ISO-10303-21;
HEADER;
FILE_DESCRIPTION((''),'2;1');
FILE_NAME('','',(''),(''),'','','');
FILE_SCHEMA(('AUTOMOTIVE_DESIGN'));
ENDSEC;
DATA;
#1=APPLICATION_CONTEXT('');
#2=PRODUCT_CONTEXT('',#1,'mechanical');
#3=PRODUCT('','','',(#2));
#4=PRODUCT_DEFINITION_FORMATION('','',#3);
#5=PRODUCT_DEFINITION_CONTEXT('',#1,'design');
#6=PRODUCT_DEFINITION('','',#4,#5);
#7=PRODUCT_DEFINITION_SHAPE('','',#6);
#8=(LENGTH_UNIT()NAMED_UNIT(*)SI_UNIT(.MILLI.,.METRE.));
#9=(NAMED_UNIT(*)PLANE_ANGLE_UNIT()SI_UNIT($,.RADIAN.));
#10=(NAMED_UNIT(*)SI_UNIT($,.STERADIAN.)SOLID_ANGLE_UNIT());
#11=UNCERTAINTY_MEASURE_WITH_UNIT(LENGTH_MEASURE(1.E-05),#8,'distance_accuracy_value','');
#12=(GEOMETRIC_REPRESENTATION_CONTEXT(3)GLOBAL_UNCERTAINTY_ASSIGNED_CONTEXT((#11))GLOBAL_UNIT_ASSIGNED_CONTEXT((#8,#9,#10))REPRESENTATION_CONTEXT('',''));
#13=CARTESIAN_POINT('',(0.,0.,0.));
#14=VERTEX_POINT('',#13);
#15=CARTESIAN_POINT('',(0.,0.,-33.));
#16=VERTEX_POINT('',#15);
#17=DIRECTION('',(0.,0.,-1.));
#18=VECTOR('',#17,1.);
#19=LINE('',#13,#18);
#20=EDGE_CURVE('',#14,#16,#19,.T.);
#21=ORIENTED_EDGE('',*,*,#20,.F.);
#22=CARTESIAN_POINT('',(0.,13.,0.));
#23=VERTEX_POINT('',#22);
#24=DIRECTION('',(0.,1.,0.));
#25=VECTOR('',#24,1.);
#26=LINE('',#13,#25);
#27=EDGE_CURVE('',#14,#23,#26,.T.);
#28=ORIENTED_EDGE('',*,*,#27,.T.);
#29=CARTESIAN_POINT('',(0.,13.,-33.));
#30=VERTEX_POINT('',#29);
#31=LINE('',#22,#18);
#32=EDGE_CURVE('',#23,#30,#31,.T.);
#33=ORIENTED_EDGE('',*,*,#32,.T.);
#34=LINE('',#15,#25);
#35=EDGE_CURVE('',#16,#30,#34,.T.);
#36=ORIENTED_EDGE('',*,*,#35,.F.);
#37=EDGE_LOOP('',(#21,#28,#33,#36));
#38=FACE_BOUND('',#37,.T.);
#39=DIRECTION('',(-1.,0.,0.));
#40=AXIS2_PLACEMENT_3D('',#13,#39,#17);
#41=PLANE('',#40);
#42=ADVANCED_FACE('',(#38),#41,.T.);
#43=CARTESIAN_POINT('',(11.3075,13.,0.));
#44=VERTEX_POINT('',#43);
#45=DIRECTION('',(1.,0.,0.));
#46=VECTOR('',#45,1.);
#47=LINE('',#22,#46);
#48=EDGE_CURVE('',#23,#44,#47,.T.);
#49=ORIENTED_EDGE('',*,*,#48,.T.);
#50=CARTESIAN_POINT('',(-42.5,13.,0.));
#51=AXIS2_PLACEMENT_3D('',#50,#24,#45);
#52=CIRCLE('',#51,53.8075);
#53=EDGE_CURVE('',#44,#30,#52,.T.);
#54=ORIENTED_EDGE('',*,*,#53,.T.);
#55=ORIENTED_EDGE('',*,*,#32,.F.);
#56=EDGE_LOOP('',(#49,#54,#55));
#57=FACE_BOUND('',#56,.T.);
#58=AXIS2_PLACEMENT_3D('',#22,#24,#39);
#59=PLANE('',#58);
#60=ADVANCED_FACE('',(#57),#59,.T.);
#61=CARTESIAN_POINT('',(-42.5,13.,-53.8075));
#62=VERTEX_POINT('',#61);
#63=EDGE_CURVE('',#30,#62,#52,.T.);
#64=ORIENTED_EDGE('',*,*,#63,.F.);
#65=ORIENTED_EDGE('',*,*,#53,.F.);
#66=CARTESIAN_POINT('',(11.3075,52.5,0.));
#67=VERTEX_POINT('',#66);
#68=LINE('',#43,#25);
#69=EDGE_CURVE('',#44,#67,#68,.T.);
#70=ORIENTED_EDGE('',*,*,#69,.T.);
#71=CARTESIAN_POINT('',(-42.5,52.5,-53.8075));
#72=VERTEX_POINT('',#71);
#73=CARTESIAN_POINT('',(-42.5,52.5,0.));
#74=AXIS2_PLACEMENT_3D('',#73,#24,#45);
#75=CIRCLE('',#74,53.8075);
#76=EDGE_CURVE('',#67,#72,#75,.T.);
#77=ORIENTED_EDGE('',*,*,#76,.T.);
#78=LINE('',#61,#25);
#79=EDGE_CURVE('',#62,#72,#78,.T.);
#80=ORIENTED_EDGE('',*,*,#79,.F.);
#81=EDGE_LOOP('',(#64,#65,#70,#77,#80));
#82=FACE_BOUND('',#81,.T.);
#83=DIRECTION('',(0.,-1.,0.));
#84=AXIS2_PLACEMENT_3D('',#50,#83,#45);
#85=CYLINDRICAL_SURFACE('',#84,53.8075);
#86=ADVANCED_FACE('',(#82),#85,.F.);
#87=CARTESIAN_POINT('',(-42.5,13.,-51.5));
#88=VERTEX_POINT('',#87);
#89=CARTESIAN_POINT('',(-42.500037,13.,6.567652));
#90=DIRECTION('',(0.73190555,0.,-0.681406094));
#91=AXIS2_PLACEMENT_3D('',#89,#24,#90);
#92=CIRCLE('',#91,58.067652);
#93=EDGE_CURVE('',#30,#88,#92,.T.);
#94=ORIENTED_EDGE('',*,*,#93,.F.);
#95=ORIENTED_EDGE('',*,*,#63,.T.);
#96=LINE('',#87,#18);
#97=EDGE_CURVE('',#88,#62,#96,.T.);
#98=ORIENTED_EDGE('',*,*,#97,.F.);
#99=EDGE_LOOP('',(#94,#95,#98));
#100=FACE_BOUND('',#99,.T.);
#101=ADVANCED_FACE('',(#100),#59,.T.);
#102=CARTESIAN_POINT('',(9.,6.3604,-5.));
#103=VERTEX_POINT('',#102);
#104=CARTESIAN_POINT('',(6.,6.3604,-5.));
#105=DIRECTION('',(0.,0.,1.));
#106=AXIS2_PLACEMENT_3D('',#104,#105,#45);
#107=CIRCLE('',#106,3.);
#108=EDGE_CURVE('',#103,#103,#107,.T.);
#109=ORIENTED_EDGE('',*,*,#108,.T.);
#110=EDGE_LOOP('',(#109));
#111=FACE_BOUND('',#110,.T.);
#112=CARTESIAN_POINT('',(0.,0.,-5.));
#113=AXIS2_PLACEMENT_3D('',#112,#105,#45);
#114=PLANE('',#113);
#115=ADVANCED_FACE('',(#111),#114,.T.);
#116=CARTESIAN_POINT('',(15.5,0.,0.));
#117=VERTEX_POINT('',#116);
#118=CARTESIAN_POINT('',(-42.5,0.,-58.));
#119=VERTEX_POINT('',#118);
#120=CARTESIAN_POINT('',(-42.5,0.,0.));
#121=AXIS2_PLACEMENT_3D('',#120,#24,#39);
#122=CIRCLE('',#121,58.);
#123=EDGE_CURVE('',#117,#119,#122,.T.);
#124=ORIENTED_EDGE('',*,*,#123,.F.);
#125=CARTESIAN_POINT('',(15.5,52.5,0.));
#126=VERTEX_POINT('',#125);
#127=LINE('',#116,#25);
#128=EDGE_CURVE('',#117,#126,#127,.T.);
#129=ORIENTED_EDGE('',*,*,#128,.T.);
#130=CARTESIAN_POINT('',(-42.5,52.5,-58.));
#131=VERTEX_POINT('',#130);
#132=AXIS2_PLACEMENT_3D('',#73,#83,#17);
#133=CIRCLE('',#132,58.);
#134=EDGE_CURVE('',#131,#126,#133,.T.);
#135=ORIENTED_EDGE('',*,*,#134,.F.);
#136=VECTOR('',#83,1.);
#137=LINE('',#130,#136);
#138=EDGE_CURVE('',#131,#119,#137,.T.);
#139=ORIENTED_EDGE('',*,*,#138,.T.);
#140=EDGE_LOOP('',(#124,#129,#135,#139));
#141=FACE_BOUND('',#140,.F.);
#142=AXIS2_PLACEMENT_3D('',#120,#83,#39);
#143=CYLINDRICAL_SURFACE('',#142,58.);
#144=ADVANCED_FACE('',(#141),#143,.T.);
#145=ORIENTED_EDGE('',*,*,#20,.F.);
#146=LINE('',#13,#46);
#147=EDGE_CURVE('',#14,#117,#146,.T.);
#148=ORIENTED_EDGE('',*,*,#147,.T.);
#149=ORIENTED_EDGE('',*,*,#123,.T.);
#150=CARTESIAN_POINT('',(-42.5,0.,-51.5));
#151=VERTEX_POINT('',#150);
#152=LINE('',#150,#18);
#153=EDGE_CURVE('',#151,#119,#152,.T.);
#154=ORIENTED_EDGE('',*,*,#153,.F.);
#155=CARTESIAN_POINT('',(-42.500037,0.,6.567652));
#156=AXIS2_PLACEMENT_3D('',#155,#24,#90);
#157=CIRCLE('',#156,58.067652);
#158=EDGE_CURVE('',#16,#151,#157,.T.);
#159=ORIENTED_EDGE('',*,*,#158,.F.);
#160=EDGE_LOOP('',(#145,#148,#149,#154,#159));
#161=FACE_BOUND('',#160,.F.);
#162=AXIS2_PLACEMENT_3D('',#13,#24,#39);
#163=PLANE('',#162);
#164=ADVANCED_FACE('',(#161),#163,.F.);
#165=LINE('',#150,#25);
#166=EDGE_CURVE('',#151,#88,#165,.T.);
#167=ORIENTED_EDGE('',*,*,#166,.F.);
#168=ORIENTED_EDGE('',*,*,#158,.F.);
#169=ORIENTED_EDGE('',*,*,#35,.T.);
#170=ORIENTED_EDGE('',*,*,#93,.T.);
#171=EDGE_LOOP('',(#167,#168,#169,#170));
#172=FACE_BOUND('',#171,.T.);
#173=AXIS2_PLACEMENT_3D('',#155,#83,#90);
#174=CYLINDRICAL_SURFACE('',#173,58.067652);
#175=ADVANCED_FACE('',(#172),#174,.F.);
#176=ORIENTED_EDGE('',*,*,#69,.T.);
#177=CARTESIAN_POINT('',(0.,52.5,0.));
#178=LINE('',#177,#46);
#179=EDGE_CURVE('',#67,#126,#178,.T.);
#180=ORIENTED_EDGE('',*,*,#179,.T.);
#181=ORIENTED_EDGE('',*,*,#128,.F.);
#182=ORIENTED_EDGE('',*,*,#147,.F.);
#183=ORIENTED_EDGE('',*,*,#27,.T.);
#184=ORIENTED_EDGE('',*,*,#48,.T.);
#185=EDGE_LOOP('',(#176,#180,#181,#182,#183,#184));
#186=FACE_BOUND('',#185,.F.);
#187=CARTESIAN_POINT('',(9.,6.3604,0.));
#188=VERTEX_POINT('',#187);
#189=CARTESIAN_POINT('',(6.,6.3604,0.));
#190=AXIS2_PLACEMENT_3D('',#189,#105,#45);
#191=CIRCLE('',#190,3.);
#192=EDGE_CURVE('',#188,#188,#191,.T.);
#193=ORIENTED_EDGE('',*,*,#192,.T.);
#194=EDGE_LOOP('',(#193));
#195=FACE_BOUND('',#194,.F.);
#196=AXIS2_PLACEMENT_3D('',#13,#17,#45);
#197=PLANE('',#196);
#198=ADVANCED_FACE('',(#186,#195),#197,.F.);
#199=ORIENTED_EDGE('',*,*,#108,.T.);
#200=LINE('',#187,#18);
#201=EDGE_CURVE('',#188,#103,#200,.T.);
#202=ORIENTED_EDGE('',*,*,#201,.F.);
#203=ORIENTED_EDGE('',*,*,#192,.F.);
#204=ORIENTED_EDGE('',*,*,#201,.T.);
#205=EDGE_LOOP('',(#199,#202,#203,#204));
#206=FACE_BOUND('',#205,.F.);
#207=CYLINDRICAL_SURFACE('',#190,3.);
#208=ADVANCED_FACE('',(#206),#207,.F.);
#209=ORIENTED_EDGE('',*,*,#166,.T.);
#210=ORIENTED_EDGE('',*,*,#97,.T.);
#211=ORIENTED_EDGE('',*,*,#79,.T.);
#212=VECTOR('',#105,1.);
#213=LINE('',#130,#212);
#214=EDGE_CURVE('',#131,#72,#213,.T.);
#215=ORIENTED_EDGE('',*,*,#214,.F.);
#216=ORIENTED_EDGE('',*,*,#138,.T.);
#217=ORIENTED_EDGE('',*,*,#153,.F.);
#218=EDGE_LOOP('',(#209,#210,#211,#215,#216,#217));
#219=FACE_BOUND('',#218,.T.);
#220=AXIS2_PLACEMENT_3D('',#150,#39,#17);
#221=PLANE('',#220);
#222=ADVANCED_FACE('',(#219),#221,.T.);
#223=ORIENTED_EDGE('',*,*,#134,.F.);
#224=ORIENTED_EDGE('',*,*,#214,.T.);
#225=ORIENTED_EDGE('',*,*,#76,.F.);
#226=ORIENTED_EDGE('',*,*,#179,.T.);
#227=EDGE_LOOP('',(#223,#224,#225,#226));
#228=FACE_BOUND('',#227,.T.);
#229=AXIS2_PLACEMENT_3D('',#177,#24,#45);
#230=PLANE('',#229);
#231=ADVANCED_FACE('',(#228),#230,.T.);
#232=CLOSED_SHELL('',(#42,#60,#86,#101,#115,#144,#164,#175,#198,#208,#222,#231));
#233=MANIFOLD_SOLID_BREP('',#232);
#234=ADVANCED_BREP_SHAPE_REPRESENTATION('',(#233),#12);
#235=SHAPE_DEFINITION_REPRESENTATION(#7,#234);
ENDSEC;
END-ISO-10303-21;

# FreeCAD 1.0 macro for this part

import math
import FreeCAD as App
import Part
import Sketcher
from FreeCAD import Vector
Q = App.Units.Quantity

doc = App.newDocument("Part")
body = doc.addObject("PartDesign::Body", "Body")

# Sketch on XZ plane
sketch1 = body.newObject("Sketcher::SketchObject", "Sketch")
sketch1.AttachmentSupport = (doc.getObject("XZ_Plane"), [""])
sketch1.MapMode = "FlatFace"
sketch1.addGeometry([
    Part.LineSegment(Vector(0, -33, 0), Vector(0, 0, 0)),  # 0
    Part.LineSegment(Vector(0, 0, 0), Vector(15.5, 0, 0)),  # 1
    Part.ArcOfCircle(Part.Circle(Vector(-42.5, 0, 0), Vector(0, 0, 1), 58), math.radians(-90), math.radians(0)),  # 2
    Part.LineSegment(Vector(-42.5, -58, 0), Vector(-42.5, -51.5, 0)),  # 3
    Part.ArcOfCircle(Part.Circle(Vector(-42.5, 6.5676, 0), Vector(0, 0, 1), 58.06759), math.radians(-90), math.radians(-42.953605)),  # 4
], False)
sketch1.addConstraint([
    Sketcher.Constraint("Coincident", 0, 2, 1, 1),
    Sketcher.Constraint("Coincident", 1, 2, 2, 2),
    Sketcher.Constraint("Coincident", 2, 1, 3, 1),
    Sketcher.Constraint("Coincident", 3, 2, 4, 1),
    Sketcher.Constraint("Coincident", 4, 2, 0, 1),
    Sketcher.Constraint("Vertical", 0),
    Sketcher.Constraint("Horizontal", 1),
    Sketcher.Constraint("Vertical", 3),
    Sketcher.Constraint("Coincident", 0, 2, -1, 1),
    Sketcher.Constraint("PointOnObject", 2, 3, -1),
    Sketcher.Constraint("Vertical", 2, 3, 4, 3),
    Sketcher.Constraint("Vertical", 4, 3, 2, 1),
    Sketcher.Constraint("DistanceY", 0, 1, 0, 2, Q("33 mm")),
    Sketcher.Constraint("DistanceY", 3, 1, 3, 2, Q("6.5 mm")),
    Sketcher.Constraint("Radius", 2, Q("58 mm")),
    Sketcher.Constraint("DistanceX", 2, 3, -1, 1, Q("42.5 mm")),
])
pad1 = body.newObject("PartDesign::Pad", "Pad")
pad1.Profile = sketch1
pad1.Length = 13
pad1.Reversed = True

# Sketch on XZ plane
sketch2 = body.newObject("Sketcher::SketchObject", "Sketch001")
sketch2.AttachmentSupport = (doc.getObject("XZ_Plane"), [""])
sketch2.MapMode = "FlatFace"
sketch2.AttachmentOffset = App.Placement(Vector(0, 0, -13), App.Rotation())
sketch2.addGeometry([
    Part.ArcOfCircle(Part.Circle(Vector(-42.5, 0, 0), Vector(0, 0, 1), 53.8075), math.radians(-90), math.radians(0)),
    Part.LineSegment(Vector(11.3075, 0, 0), Vector(15.5, 0, 0)),
    Part.ArcOfCircle(Part.Circle(Vector(-42.5, 0, 0), Vector(0, 0, 1), 58), math.radians(-90), math.radians(0)),
    Part.LineSegment(Vector(-42.5, -58, 0), Vector(-42.5, -53.8075, 0)),
], False)
sketch2.addConstraint([
    Sketcher.Constraint("Coincident", 0, 2, 1, 1),
    Sketcher.Constraint("Coincident", 1, 2, 2, 2),
    Sketcher.Constraint("Coincident", 2, 1, 3, 1),
    Sketcher.Constraint("Coincident", 3, 2, 0, 1),
    Sketcher.Constraint("Horizontal", 1),
    Sketcher.Constraint("Vertical", 3),
    Sketcher.Constraint("Coincident", 2, 3, 0, 3),
    Sketcher.Constraint("PointOnObject", 0, 3, -1),
    Sketcher.Constraint("PointOnObject", 0, 2, -1),
    Sketcher.Constraint("Vertical", 0, 3, 2, 1),
    Sketcher.Constraint("Radius", 2, Q("58 mm")),
    Sketcher.Constraint("DistanceX", 1, 1, 1, 2, Q("4.1925 mm")),
    Sketcher.Constraint("DistanceX", 0, 3, -1, 1, Q("42.5 mm")),
])
pad2 = body.newObject("PartDesign::Pad", "Pad001")
pad2.Profile = sketch2
pad2.Length = 39.5
pad2.Reversed = True

# Sketch on YZ plane
sketch3 = body.newObject("Sketcher::SketchObject", "Sketch002")
sketch3.AttachmentSupport = (doc.getObject("YZ_Plane"), [""])
sketch3.MapMode = "FlatFace"
sketch3.AttachmentOffset = App.Placement(Vector(0, 0, -42.5), App.Rotation())
sketch3.addGeometry(Part.Circle(Vector(98.5, -48, 0), Vector(0, 0, 1), 3), False)
sketch3.addConstraint([
    Sketcher.Constraint("Diameter", 0, Q("6 mm")),
    Sketcher.Constraint("DistanceY", 0, 3, -1, 1, Q("48 mm")),
    Sketcher.Constraint("DistanceX", -1, 1, 0, 3, Q("98.5 mm")),
])
pocket1 = body.newObject("PartDesign::Pocket", "Pocket")
pocket1.Profile = sketch3
pocket1.Length = 5
pocket1.Reversed = True

# Sketch on XY plane
sketch4 = body.newObject("Sketcher::SketchObject", "Sketch003")
sketch4.AttachmentSupport = (doc.getObject("XY_Plane"), [""])
sketch4.MapMode = "FlatFace"
sketch4.addGeometry(Part.Circle(Vector(6, 6.3604, 0), Vector(0, 0, 1), 3), False)
sketch4.addConstraint([
    Sketcher.Constraint("Diameter", 0, Q("6 mm")),
    Sketcher.Constraint("DistanceX", -1, 1, 0, 3, Q("6 mm")),
    Sketcher.Constraint("DistanceY", -1, 1, 0, 3, Q("6.3604 mm")),
])
pocket2 = body.newObject("PartDesign::Pocket", "Pocket001")
pocket2.Profile = sketch4
pocket2.Length = 5

doc.recompute()
